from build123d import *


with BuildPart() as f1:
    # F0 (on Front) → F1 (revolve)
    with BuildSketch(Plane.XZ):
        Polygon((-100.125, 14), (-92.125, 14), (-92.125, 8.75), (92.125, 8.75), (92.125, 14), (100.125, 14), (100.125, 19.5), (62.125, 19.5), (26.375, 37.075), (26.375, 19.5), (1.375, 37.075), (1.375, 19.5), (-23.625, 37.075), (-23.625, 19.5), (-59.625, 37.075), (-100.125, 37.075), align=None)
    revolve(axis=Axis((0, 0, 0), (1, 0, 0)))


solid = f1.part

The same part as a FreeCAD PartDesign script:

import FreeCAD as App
import Part
import Sketcher
from FreeCAD import Vector


def add_polygon(sketch, points):
    """Adds a closed chain of lines whose ends are joined by coincident constraints."""
    first, n = sketch.GeometryCount, len(points)
    for a, b in zip(points, points[1:] + points[:1]):
        sketch.addGeometry(Part.LineSegment(App.Vector(*a, 0), App.Vector(*b, 0)), False)
    for i in range(n):
        sketch.addConstraint(Sketcher.Constraint("Coincident", first + i, 2, first + (i + 1) % n, 1))

doc = App.newDocument("Part")
body = doc.addObject("PartDesign::Body", "Body")

# Sketch on XZ plane
sketch1 = body.newObject("Sketcher::SketchObject", "Sketch")
sketch1.AttachmentSupport = (doc.getObject("XZ_Plane"), [""])
sketch1.MapMode = "FlatFace"
add_polygon(sketch1, [(-100, 14), (-92, 14), (-92, 9), (92, 9), (92, 14), (100, 14), (100, 20), (62, 20), (26, 37), (26, 20), (1, 37), (1, 20), (-24, 37), (-24, 20), (-60, 37), (-100, 37)])  # lines 0-15
sketch1.addConstraint(Sketcher.Constraint("Horizontal", 0))
sketch1.addConstraint(Sketcher.Constraint("Vertical", 1))
sketch1.addConstraint(Sketcher.Constraint("Horizontal", 2))
sketch1.addConstraint(Sketcher.Constraint("Vertical", 3))
sketch1.addConstraint(Sketcher.Constraint("Horizontal", 4))
sketch1.addConstraint(Sketcher.Constraint("Vertical", 5))
sketch1.addConstraint(Sketcher.Constraint("Horizontal", 6))
sketch1.addConstraint(Sketcher.Constraint("Vertical", 8))
sketch1.addConstraint(Sketcher.Constraint("Vertical", 10))
sketch1.addConstraint(Sketcher.Constraint("Vertical", 12))
sketch1.addConstraint(Sketcher.Constraint("Horizontal", 14))
sketch1.addConstraint(Sketcher.Constraint("Vertical", 15))
sketch1.addConstraint(Sketcher.Constraint("Symmetric", 0, 2, 3, 2, -2))
sketch1.addConstraint(Sketcher.Constraint("Parallel", 9, 11))
sketch1.addConstraint(Sketcher.Constraint("Horizontal", 6, 2, 8, 2))
sketch1.addConstraint(Sketcher.Constraint("Horizontal", 7, 2, 9, 2))
sketch1.addConstraint(Sketcher.Constraint("Horizontal", 8, 2, 10, 2))
sketch1.addConstraint(Sketcher.Constraint("Horizontal", 9, 2, 11, 2))
sketch1.addConstraint(Sketcher.Constraint("Horizontal", 10, 2, 12, 2))
sketch1.addConstraint(Sketcher.Constraint("Horizontal", 11, 2, 13, 2))
sketch1.addConstraint(Sketcher.Constraint("Equal", 0, 4))
sketch1.addConstraint(Sketcher.Constraint("DistanceX", 0, 1, 0, 2, 8.0))
sketch1.addConstraint(Sketcher.Constraint("DistanceX", 6, 2, 6, 1, 38.0))
sketch1.addConstraint(Sketcher.Constraint("DistanceX", 14, 2, 14, 1, 40.5))
sketch1.addConstraint(Sketcher.Constraint("DistanceY", 5, 1, 5, 2, 5.5))
sketch1.addConstraint(Sketcher.Constraint("DistanceY", -1, 1, 0, 2, 14.0))
sketch1.addConstraint(Sketcher.Constraint("DistanceX", 9, 2, 7, 2, 25.0))
sketch1.addConstraint(Sketcher.Constraint("DistanceX", 13, 2, 11, 2, 36.0))
sketch1.addConstraint(Sketcher.Constraint("DistanceX", 2, 1, 2, 2, 184.25))
sketch1.addConstraint(Sketcher.Constraint("DistanceY", 1, 2, 1, 1, 5.25))
sketch1.addConstraint(Sketcher.Constraint("DistanceY", 8, 2, 8, 1, 17.575))
revolution = body.newObject("PartDesign::Revolution", "Revolution")
revolution.Profile = sketch1
revolution.ReferenceAxis = (sketch1, ["H_Axis"])
revolution.Angle = 360

doc.recompute()
